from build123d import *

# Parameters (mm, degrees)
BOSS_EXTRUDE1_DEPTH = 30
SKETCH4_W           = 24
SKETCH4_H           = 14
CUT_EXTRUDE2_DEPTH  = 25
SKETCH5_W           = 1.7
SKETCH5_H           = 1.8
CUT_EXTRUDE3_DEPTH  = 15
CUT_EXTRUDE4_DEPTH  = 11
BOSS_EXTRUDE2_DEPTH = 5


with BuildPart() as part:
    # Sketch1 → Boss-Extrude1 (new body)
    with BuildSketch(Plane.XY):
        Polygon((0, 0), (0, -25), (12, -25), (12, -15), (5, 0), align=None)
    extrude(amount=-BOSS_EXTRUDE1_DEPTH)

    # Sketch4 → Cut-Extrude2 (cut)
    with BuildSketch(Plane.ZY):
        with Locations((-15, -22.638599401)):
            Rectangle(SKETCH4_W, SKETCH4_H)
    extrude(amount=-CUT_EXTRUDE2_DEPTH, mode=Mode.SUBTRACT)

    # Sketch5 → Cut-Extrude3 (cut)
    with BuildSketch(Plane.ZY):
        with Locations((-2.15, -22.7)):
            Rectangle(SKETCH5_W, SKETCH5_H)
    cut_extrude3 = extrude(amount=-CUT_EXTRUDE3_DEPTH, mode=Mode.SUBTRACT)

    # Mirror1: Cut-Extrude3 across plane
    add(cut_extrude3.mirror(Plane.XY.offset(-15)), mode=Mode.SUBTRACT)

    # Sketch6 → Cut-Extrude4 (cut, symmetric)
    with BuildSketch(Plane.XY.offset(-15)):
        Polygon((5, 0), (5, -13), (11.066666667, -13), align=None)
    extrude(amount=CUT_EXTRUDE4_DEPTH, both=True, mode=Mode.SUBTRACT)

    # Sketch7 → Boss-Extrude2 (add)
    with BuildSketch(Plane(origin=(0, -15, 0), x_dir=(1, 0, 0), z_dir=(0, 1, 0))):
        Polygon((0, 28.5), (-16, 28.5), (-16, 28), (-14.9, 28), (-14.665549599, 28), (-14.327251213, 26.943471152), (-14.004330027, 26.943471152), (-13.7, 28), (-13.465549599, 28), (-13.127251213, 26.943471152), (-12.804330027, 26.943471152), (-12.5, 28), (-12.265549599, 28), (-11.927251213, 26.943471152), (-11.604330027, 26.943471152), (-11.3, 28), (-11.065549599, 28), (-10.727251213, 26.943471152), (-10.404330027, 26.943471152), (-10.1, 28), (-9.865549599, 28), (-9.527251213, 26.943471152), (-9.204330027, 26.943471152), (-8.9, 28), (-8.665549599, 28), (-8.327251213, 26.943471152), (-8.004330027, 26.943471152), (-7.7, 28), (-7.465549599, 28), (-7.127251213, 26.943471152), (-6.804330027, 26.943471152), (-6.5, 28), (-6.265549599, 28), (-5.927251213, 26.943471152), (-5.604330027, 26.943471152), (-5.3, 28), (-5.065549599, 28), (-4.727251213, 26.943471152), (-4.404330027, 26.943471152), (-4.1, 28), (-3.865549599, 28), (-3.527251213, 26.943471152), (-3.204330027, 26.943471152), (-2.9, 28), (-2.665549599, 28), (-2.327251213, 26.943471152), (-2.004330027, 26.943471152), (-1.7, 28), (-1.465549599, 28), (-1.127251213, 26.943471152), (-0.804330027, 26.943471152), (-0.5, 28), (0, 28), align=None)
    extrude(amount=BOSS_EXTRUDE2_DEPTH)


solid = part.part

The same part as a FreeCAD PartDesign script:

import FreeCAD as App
import Part
import Sketcher

V = App.Vector
Q = App.Units.Quantity

doc = App.newDocument("Part")
params = doc.addObject("Spreadsheet::Sheet", "Params")
for row, (alias, value) in enumerate([
    ("sketch1_width", "12 mm"),
    ("sketch1_width2", "5 mm"),
    ("sketch1_height", "25 mm"),
    ("sketch1_height2", "10 mm"),
    ("pad1_length", "30 mm"),
    ("sketch2_width", "14 mm"),
    ("sketch2_height", "24 mm"),
    ("pocket1_length", "25 mm"),
    ("sketch3_width", "1.8 mm"),
    ("sketch3_height", "1.7 mm"),
    ("pocket2_length", "15 mm"),
    ("sketch4_height", "13 mm"),
    ("pocket3_length", "22 mm"),
    ("sketch5_width", "16 mm"),
    ("sketch5_width2", "0.5 mm"),
    ("pad2_length", "5 mm"),
], start=1):
    params.set(f"A{row}", alias)
    params.set(f"B{row}", "=" + value)
    params.setAlias(f"B{row}", alias)

body = doc.addObject("PartDesign::Body", "Body")

sketch1 = body.newObject("Sketcher::SketchObject", "Sketch")
sketch1.AttachmentSupport = (doc.getObject("XY_Plane"), [""])
sketch1.MapMode = "FlatFace"
sketch1.addGeometry(Part.LineSegment(V(0, 0, 0), V(0, -25, 0)), False)
sketch1.addGeometry(Part.LineSegment(V(0, -25, 0), V(12, -25, 0)), False)
sketch1.addGeometry(Part.LineSegment(V(12, -25, 0), V(12, -15, 0)), False)
sketch1.addGeometry(Part.LineSegment(V(12, -15, 0), V(5, 0, 0)), False)
sketch1.addGeometry(Part.LineSegment(V(5, 0, 0), V(0, 0, 0)), False)
sketch1.addConstraint(Sketcher.Constraint("Coincident", 0, 2, 1, 1))
sketch1.addConstraint(Sketcher.Constraint("Coincident", 1, 2, 2, 1))
sketch1.addConstraint(Sketcher.Constraint("Coincident", 2, 2, 3, 1))
sketch1.addConstraint(Sketcher.Constraint("Coincident", 3, 2, 4, 1))
sketch1.addConstraint(Sketcher.Constraint("Coincident", 4, 2, 0, 1))
sketch1.addConstraint(Sketcher.Constraint("Vertical", 0))
sketch1.addConstraint(Sketcher.Constraint("Horizontal", 1))
sketch1.addConstraint(Sketcher.Constraint("Vertical", 2))
sketch1.addConstraint(Sketcher.Constraint("Horizontal", 4))
sketch1.addConstraint(Sketcher.Constraint("Coincident", 4, 2, -1, 1))
sketch1.addConstraint(Sketcher.Constraint("DistanceX", 1, 1, 1, 2, Q("12 mm")))
sketch1.addConstraint(Sketcher.Constraint("DistanceX", 4, 2, 4, 1, Q("5 mm")))
sketch1.addConstraint(Sketcher.Constraint("DistanceY", 0, 2, 0, 1, Q("25 mm")))
sketch1.addConstraint(Sketcher.Constraint("DistanceY", 2, 1, 2, 2, Q("10 mm")))
sketch1.setExpression("Constraints[10]", "Params.sketch1_width")
sketch1.setExpression("Constraints[11]", "Params.sketch1_width2")
sketch1.setExpression("Constraints[12]", "Params.sketch1_height")
sketch1.setExpression("Constraints[13]", "Params.sketch1_height2")
pad1 = body.newObject("PartDesign::Pad", "Pad")
pad1.Profile = sketch1
pad1.setExpression("Length", "Params.pad1_length")
pad1.Reversed = True

sketch2 = body.newObject("Sketcher::SketchObject", "Sketch001")
sketch2.AttachmentSupport = (doc.getObject("YZ_Plane"), [""])
sketch2.MapMode = "FlatFace"
sketch2.addGeometry(Part.LineSegment(V(-15.638599, -27, 0), V(-29.638599, -27, 0)), False)
sketch2.addGeometry(Part.LineSegment(V(-29.638599, -27, 0), V(-29.638599, -3, 0)), False)
sketch2.addGeometry(Part.LineSegment(V(-29.638599, -3, 0), V(-15.638599, -3, 0)), False)
sketch2.addGeometry(Part.LineSegment(V(-15.638599, -3, 0), V(-15.638599, -27, 0)), False)
sketch2.addConstraint(Sketcher.Constraint("Coincident", 0, 2, 1, 1))
sketch2.addConstraint(Sketcher.Constraint("Coincident", 1, 2, 2, 1))
sketch2.addConstraint(Sketcher.Constraint("Coincident", 2, 2, 3, 1))
sketch2.addConstraint(Sketcher.Constraint("Coincident", 3, 2, 0, 1))
sketch2.addConstraint(Sketcher.Constraint("Horizontal", 0))
sketch2.addConstraint(Sketcher.Constraint("Vertical", 1))
sketch2.addConstraint(Sketcher.Constraint("Horizontal", 2))
sketch2.addConstraint(Sketcher.Constraint("Vertical", 3))
sketch2.addConstraint(Sketcher.Constraint("DistanceX", 0, 2, 0, 1, Q("14 mm")))
sketch2.addConstraint(Sketcher.Constraint("DistanceY", 1, 1, 1, 2, Q("24 mm")))
sketch2.addConstraint(Sketcher.Constraint("DistanceY", 0, 2, -1, 1, Q("27 mm")))
sketch2.addConstraint(Sketcher.Constraint("DistanceX", 0, 2, -1, 1, Q("29.638599 mm")))
sketch2.setExpression("Constraints[8]", "Params.sketch2_width")
sketch2.setExpression("Constraints[9]", "Params.sketch2_height")
pocket1 = body.newObject("PartDesign::Pocket", "Pocket")
pocket1.Profile = sketch2
pocket1.setExpression("Length", "Params.pocket1_length")
pocket1.Reversed = True

sketch3 = body.newObject("Sketcher::SketchObject", "Sketch002")
sketch3.AttachmentSupport = (doc.getObject("YZ_Plane"), [""])
sketch3.MapMode = "FlatFace"
sketch3.addGeometry(Part.LineSegment(V(-21.8, -3, 0), V(-23.6, -3, 0)), False)
sketch3.addGeometry(Part.LineSegment(V(-23.6, -3, 0), V(-23.6, -1.3, 0)), False)
sketch3.addGeometry(Part.LineSegment(V(-23.6, -1.3, 0), V(-21.8, -1.3, 0)), False)
sketch3.addGeometry(Part.LineSegment(V(-21.8, -1.3, 0), V(-21.8, -3, 0)), False)
sketch3.addConstraint(Sketcher.Constraint("Coincident", 0, 2, 1, 1))
sketch3.addConstraint(Sketcher.Constraint("Coincident", 1, 2, 2, 1))
sketch3.addConstraint(Sketcher.Constraint("Coincident", 2, 2, 3, 1))
sketch3.addConstraint(Sketcher.Constraint("Coincident", 3, 2, 0, 1))
sketch3.addConstraint(Sketcher.Constraint("Horizontal", 0))
sketch3.addConstraint(Sketcher.Constraint("Vertical", 1))
sketch3.addConstraint(Sketcher.Constraint("Horizontal", 2))
sketch3.addConstraint(Sketcher.Constraint("Vertical", 3))
sketch3.addConstraint(Sketcher.Constraint("DistanceX", 0, 2, 0, 1, Q("1.8 mm")))
sketch3.addConstraint(Sketcher.Constraint("DistanceY", 1, 1, 1, 2, Q("1.7 mm")))
sketch3.addConstraint(Sketcher.Constraint("DistanceY", 0, 2, -1, 1, Q("3 mm")))
sketch3.addConstraint(Sketcher.Constraint("DistanceX", 0, 2, -1, 1, Q("23.6 mm")))
sketch3.setExpression("Constraints[8]", "Params.sketch3_width")
sketch3.setExpression("Constraints[9]", "Params.sketch3_height")
pocket2 = body.newObject("PartDesign::Pocket", "Pocket001")
pocket2.Profile = sketch3
pocket2.setExpression("Length", "Params.pocket2_length")
pocket2.Reversed = True
doc.recompute()

datumplane = body.newObject("PartDesign::Plane", "DatumPlane")
datumplane.AttachmentSupport = (doc.getObject("XY_Plane"), [""])
datumplane.MapMode = "FlatFace"
datumplane.AttachmentOffset = App.Placement(V(0, 0, -15), App.Rotation())
mirrored = body.newObject("PartDesign::Mirrored", "Mirrored")
mirrored.Originals = [pocket2]
mirrored.MirrorPlane = (datumplane, [""])
body.Tip = mirrored

sketch4 = body.newObject("Sketcher::SketchObject", "Sketch003")
sketch4.AttachmentSupport = (doc.getObject("XY_Plane"), [""])
sketch4.MapMode = "FlatFace"
sketch4.AttachmentOffset = App.Placement(V(0, 0, -15), App.Rotation())
sketch4.addGeometry(Part.LineSegment(V(5, 0, 0), V(5, -13, 0)), False)
sketch4.addGeometry(Part.LineSegment(V(5, -13, 0), V(11.066667, -13, 0)), False)
sketch4.addGeometry(Part.LineSegment(V(11.066667, -13, 0), V(5, 0, 0)), False)
sketch4.addConstraint(Sketcher.Constraint("Coincident", 0, 2, 1, 1))
sketch4.addConstraint(Sketcher.Constraint("Coincident", 1, 2, 2, 1))
sketch4.addConstraint(Sketcher.Constraint("Coincident", 2, 2, 0, 1))
sketch4.addConstraint(Sketcher.Constraint("Vertical", 0))
sketch4.addConstraint(Sketcher.Constraint("Horizontal", 1))
sketch4.addConstraint(Sketcher.Constraint("PointOnObject", 2, 2, -1))
sketch4.addConstraint(Sketcher.Constraint("DistanceY", 0, 2, 0, 1, Q("13 mm")))
sketch4.addConstraint(Sketcher.Constraint("DistanceX", -1, 1, 0, 2, Q("5 mm")))
sketch4.addConstraint(Sketcher.Constraint("DistanceX", 1, 1, 1, 2, Q("6.066667 mm")))
sketch4.setExpression("Constraints[6]", "Params.sketch4_height")
pocket3 = body.newObject("PartDesign::Pocket", "Pocket002")
pocket3.Profile = sketch4
pocket3.setExpression("Length", "Params.pocket3_length")
pocket3.Midplane = True

sketch5 = body.newObject("Sketcher::SketchObject", "Sketch004")
sketch5.AttachmentSupport = (doc.getObject("XZ_Plane"), [""])
sketch5.MapMode = "FlatFace"
sketch5.AttachmentOffset = App.Placement(V(0, 0, 15), App.Rotation())
sketch5.addGeometry(Part.LineSegment(V(0, -28.5, 0), V(-16, -28.5, 0)), False)
sketch5.addGeometry(Part.LineSegment(V(-16, -28.5, 0), V(-16, -28, 0)), False)
sketch5.addGeometry(Part.LineSegment(V(-16, -28, 0), V(-14.66555, -28, 0)), False)
sketch5.addGeometry(Part.LineSegment(V(-14.66555, -28, 0), V(-14.327251, -26.943471, 0)), False)
sketch5.addGeometry(Part.LineSegment(V(-14.327251, -26.943471, 0), V(-14.00433, -26.943471, 0)), False)
sketch5.addGeometry(Part.LineSegment(V(-14.00433, -26.943471, 0), V(-13.7, -28, 0)), False)
sketch5.addGeometry(Part.LineSegment(V(-13.7, -28, 0), V(-13.46555, -28, 0)), False)
sketch5.addGeometry(Part.LineSegment(V(-13.46555, -28, 0), V(-13.127251, -26.943471, 0)), False)
sketch5.addGeometry(Part.LineSegment(V(-13.127251, -26.943471, 0), V(-12.80433, -26.943471, 0)), False)
sketch5.addGeometry(Part.LineSegment(V(-12.80433, -26.943471, 0), V(-12.5, -28, 0)), False)
sketch5.addGeometry(Part.LineSegment(V(-12.5, -28, 0), V(-12.26555, -28, 0)), False)
sketch5.addGeometry(Part.LineSegment(V(-12.26555, -28, 0), V(-11.927251, -26.943471, 0)), False)
sketch5.addGeometry(Part.LineSegment(V(-11.927251, -26.943471, 0), V(-11.60433, -26.943471, 0)), False)
sketch5.addGeometry(Part.LineSegment(V(-11.60433, -26.943471, 0), V(-11.3, -28, 0)), False)
sketch5.addGeometry(Part.LineSegment(V(-11.3, -28, 0), V(-11.06555, -28, 0)), False)
sketch5.addGeometry(Part.LineSegment(V(-11.06555, -28, 0), V(-10.727251, -26.943471, 0)), False)
sketch5.addGeometry(Part.LineSegment(V(-10.727251, -26.943471, 0), V(-10.40433, -26.943471, 0)), False)
sketch5.addGeometry(Part.LineSegment(V(-10.40433, -26.943471, 0), V(-10.1, -28, 0)), False)
sketch5.addGeometry(Part.LineSegment(V(-10.1, -28, 0), V(-9.86555, -28, 0)), False)
sketch5.addGeometry(Part.LineSegment(V(-9.86555, -28, 0), V(-9.527251, -26.943471, 0)), False)
sketch5.addGeometry(Part.LineSegment(V(-9.527251, -26.943471, 0), V(-9.20433, -26.943471, 0)), False)
sketch5.addGeometry(Part.LineSegment(V(-9.20433, -26.943471, 0), V(-8.9, -28, 0)), False)
sketch5.addGeometry(Part.LineSegment(V(-8.9, -28, 0), V(-8.66555, -28, 0)), False)
sketch5.addGeometry(Part.LineSegment(V(-8.66555, -28, 0), V(-8.327251, -26.943471, 0)), False)
sketch5.addGeometry(Part.LineSegment(V(-8.327251, -26.943471, 0), V(-8.00433, -26.943471, 0)), False)
sketch5.addGeometry(Part.LineSegment(V(-8.00433, -26.943471, 0), V(-7.7, -28, 0)), False)
sketch5.addGeometry(Part.LineSegment(V(-7.7, -28, 0), V(-7.46555, -28, 0)), False)
sketch5.addGeometry(Part.LineSegment(V(-7.46555, -28, 0), V(-7.127251, -26.943471, 0)), False)
sketch5.addGeometry(Part.LineSegment(V(-7.127251, -26.943471, 0), V(-6.80433, -26.943471, 0)), False)
sketch5.addGeometry(Part.LineSegment(V(-6.80433, -26.943471, 0), V(-6.5, -28, 0)), False)
sketch5.addGeometry(Part.LineSegment(V(-6.5, -28, 0), V(-6.26555, -28, 0)), False)
sketch5.addGeometry(Part.LineSegment(V(-6.26555, -28, 0), V(-5.927251, -26.943471, 0)), False)
sketch5.addGeometry(Part.LineSegment(V(-5.927251, -26.943471, 0), V(-5.60433, -26.943471, 0)), False)
sketch5.addGeometry(Part.LineSegment(V(-5.60433, -26.943471, 0), V(-5.3, -28, 0)), False)
sketch5.addGeometry(Part.LineSegment(V(-5.3, -28, 0), V(-5.06555, -28, 0)), False)
sketch5.addGeometry(Part.LineSegment(V(-5.06555, -28, 0), V(-4.727251, -26.943471, 0)), False)
sketch5.addGeometry(Part.LineSegment(V(-4.727251, -26.943471, 0), V(-4.40433, -26.943471, 0)), False)
sketch5.addGeometry(Part.LineSegment(V(-4.40433, -26.943471, 0), V(-4.1, -28, 0)), False)
sketch5.addGeometry(Part.LineSegment(V(-4.1, -28, 0), V(-3.86555, -28, 0)), False)
sketch5.addGeometry(Part.LineSegment(V(-3.86555, -28, 0), V(-3.527251, -26.943471, 0)), False)
sketch5.addGeometry(Part.LineSegment(V(-3.527251, -26.943471, 0), V(-3.20433, -26.943471, 0)), False)
sketch5.addGeometry(Part.LineSegment(V(-3.20433, -26.943471, 0), V(-2.9, -28, 0)), False)
sketch5.addGeometry(Part.LineSegment(V(-2.9, -28, 0), V(-2.66555, -28, 0)), False)
sketch5.addGeometry(Part.LineSegment(V(-2.66555, -28, 0), V(-2.327251, -26.943471, 0)), False)
sketch5.addGeometry(Part.LineSegment(V(-2.327251, -26.943471, 0), V(-2.00433, -26.943471, 0)), False)
sketch5.addGeometry(Part.LineSegment(V(-2.00433, -26.943471, 0), V(-1.7, -28, 0)), False)
sketch5.addGeometry(Part.LineSegment(V(-1.7, -28, 0), V(-1.46555, -28, 0)), False)
sketch5.addGeometry(Part.LineSegment(V(-1.46555, -28, 0), V(-1.127251, -26.943471, 0)), False)
sketch5.addGeometry(Part.LineSegment(V(-1.127251, -26.943471, 0), V(-0.80433, -26.943471, 0)), False)
sketch5.addGeometry(Part.LineSegment(V(-0.80433, -26.943471, 0), V(-0.5, -28, 0)), False)
sketch5.addGeometry(Part.LineSegment(V(-0.5, -28, 0), V(0, -28, 0)), False)
sketch5.addGeometry(Part.LineSegment(V(0, -28, 0), V(0, -28.5, 0)), False)
sketch5.addConstraint(Sketcher.Constraint("Coincident", 0, 2, 1, 1))
sketch5.addConstraint(Sketcher.Constraint("Coincident", 1, 2, 2, 1))
sketch5.addConstraint(Sketcher.Constraint("Coincident", 2, 2, 3, 1))
sketch5.addConstraint(Sketcher.Constraint("Coincident", 3, 2, 4, 1))
sketch5.addConstraint(Sketcher.Constraint("Coincident", 4, 2, 5, 1))
sketch5.addConstraint(Sketcher.Constraint("Coincident", 5, 2, 6, 1))
sketch5.addConstraint(Sketcher.Constraint("Coincident", 6, 2, 7, 1))
sketch5.addConstraint(Sketcher.Constraint("Coincident", 7, 2, 8, 1))
sketch5.addConstraint(Sketcher.Constraint("Coincident", 8, 2, 9, 1))
sketch5.addConstraint(Sketcher.Constraint("Coincident", 9, 2, 10, 1))
sketch5.addConstraint(Sketcher.Constraint("Coincident", 10, 2, 11, 1))
sketch5.addConstraint(Sketcher.Constraint("Coincident", 11, 2, 12, 1))
sketch5.addConstraint(Sketcher.Constraint("Coincident", 12, 2, 13, 1))
sketch5.addConstraint(Sketcher.Constraint("Coincident", 13, 2, 14, 1))
sketch5.addConstraint(Sketcher.Constraint("Coincident", 14, 2, 15, 1))
sketch5.addConstraint(Sketcher.Constraint("Coincident", 15, 2, 16, 1))
sketch5.addConstraint(Sketcher.Constraint("Coincident", 16, 2, 17, 1))
sketch5.addConstraint(Sketcher.Constraint("Coincident", 17, 2, 18, 1))
sketch5.addConstraint(Sketcher.Constraint("Coincident", 18, 2, 19, 1))
sketch5.addConstraint(Sketcher.Constraint("Coincident", 19, 2, 20, 1))
sketch5.addConstraint(Sketcher.Constraint("Coincident", 20, 2, 21, 1))
sketch5.addConstraint(Sketcher.Constraint("Coincident", 21, 2, 22, 1))
sketch5.addConstraint(Sketcher.Constraint("Coincident", 22, 2, 23, 1))
sketch5.addConstraint(Sketcher.Constraint("Coincident", 23, 2, 24, 1))
sketch5.addConstraint(Sketcher.Constraint("Coincident", 24, 2, 25, 1))
sketch5.addConstraint(Sketcher.Constraint("Coincident", 25, 2, 26, 1))
sketch5.addConstraint(Sketcher.Constraint("Coincident", 26, 2, 27, 1))
sketch5.addConstraint(Sketcher.Constraint("Coincident", 27, 2, 28, 1))
sketch5.addConstraint(Sketcher.Constraint("Coincident", 28, 2, 29, 1))
sketch5.addConstraint(Sketcher.Constraint("Coincident", 29, 2, 30, 1))
sketch5.addConstraint(Sketcher.Constraint("Coincident", 30, 2, 31, 1))
sketch5.addConstraint(Sketcher.Constraint("Coincident", 31, 2, 32, 1))
sketch5.addConstraint(Sketcher.Constraint("Coincident", 32, 2, 33, 1))
sketch5.addConstraint(Sketcher.Constraint("Coincident", 33, 2, 34, 1))
sketch5.addConstraint(Sketcher.Constraint("Coincident", 34, 2, 35, 1))
sketch5.addConstraint(Sketcher.Constraint("Coincident", 35, 2, 36, 1))
sketch5.addConstraint(Sketcher.Constraint("Coincident", 36, 2, 37, 1))
sketch5.addConstraint(Sketcher.Constraint("Coincident", 37, 2, 38, 1))
sketch5.addConstraint(Sketcher.Constraint("Coincident", 38, 2, 39, 1))
sketch5.addConstraint(Sketcher.Constraint("Coincident", 39, 2, 40, 1))
sketch5.addConstraint(Sketcher.Constraint("Coincident", 40, 2, 41, 1))
sketch5.addConstraint(Sketcher.Constraint("Coincident", 41, 2, 42, 1))
sketch5.addConstraint(Sketcher.Constraint("Coincident", 42, 2, 43, 1))
sketch5.addConstraint(Sketcher.Constraint("Coincident", 43, 2, 44, 1))
sketch5.addConstraint(Sketcher.Constraint("Coincident", 44, 2, 45, 1))
sketch5.addConstraint(Sketcher.Constraint("Coincident", 45, 2, 46, 1))
sketch5.addConstraint(Sketcher.Constraint("Coincident", 46, 2, 47, 1))
sketch5.addConstraint(Sketcher.Constraint("Coincident", 47, 2, 48, 1))
sketch5.addConstraint(Sketcher.Constraint("Coincident", 48, 2, 49, 1))
sketch5.addConstraint(Sketcher.Constraint("Coincident", 49, 2, 50, 1))
sketch5.addConstraint(Sketcher.Constraint("Coincident", 50, 2, 51, 1))
sketch5.addConstraint(Sketcher.Constraint("Coincident", 51, 2, 0, 1))
sketch5.addConstraint(Sketcher.Constraint("Horizontal", 0))
sketch5.addConstraint(Sketcher.Constraint("Vertical", 1))
sketch5.addConstraint(Sketcher.Constraint("Horizontal", 2))
sketch5.addConstraint(Sketcher.Constraint("Horizontal", 4))
sketch5.addConstraint(Sketcher.Constraint("Horizontal", 6))
sketch5.addConstraint(Sketcher.Constraint("Horizontal", 8))
sketch5.addConstraint(Sketcher.Constraint("Horizontal", 10))
sketch5.addConstraint(Sketcher.Constraint("Horizontal", 12))
sketch5.addConstraint(Sketcher.Constraint("Horizontal", 14))
sketch5.addConstraint(Sketcher.Constraint("Horizontal", 16))
sketch5.addConstraint(Sketcher.Constraint("Horizontal", 18))
sketch5.addConstraint(Sketcher.Constraint("Horizontal", 20))
sketch5.addConstraint(Sketcher.Constraint("Horizontal", 22))
sketch5.addConstraint(Sketcher.Constraint("Horizontal", 24))
sketch5.addConstraint(Sketcher.Constraint("Horizontal", 26))
sketch5.addConstraint(Sketcher.Constraint("Horizontal", 28))
sketch5.addConstraint(Sketcher.Constraint("Horizontal", 30))
sketch5.addConstraint(Sketcher.Constraint("Horizontal", 32))
sketch5.addConstraint(Sketcher.Constraint("Horizontal", 34))
sketch5.addConstraint(Sketcher.Constraint("Horizontal", 36))
sketch5.addConstraint(Sketcher.Constraint("Horizontal", 38))
sketch5.addConstraint(Sketcher.Constraint("Horizontal", 40))
sketch5.addConstraint(Sketcher.Constraint("Horizontal", 42))
sketch5.addConstraint(Sketcher.Constraint("Horizontal", 44))
sketch5.addConstraint(Sketcher.Constraint("Horizontal", 46))
sketch5.addConstraint(Sketcher.Constraint("Horizontal", 48))
sketch5.addConstraint(Sketcher.Constraint("Horizontal", 50))
sketch5.addConstraint(Sketcher.Constraint("Vertical", 51))
sketch5.addConstraint(Sketcher.Constraint("PointOnObject", 50, 2, -2))
sketch5.addConstraint(Sketcher.Constraint("Parallel", 3, 7))
sketch5.addConstraint(Sketcher.Constraint("Parallel", 5, 9))
sketch5.addConstraint(Sketcher.Constraint("Parallel", 7, 11))
sketch5.addConstraint(Sketcher.Constraint("Parallel", 9, 13))
sketch5.addConstraint(Sketcher.Constraint("Parallel", 11, 15))
sketch5.addConstraint(Sketcher.Constraint("Parallel", 13, 17))
sketch5.addConstraint(Sketcher.Constraint("Parallel", 15, 19))
sketch5.addConstraint(Sketcher.Constraint("Parallel", 17, 21))
sketch5.addConstraint(Sketcher.Constraint("Parallel", 19, 23))
sketch5.addConstraint(Sketcher.Constraint("Parallel", 21, 25))
sketch5.addConstraint(Sketcher.Constraint("Parallel", 23, 27))
sketch5.addConstraint(Sketcher.Constraint("Parallel", 25, 29))
sketch5.addConstraint(Sketcher.Constraint("Parallel", 27, 31))
sketch5.addConstraint(Sketcher.Constraint("Parallel", 29, 33))
sketch5.addConstraint(Sketcher.Constraint("Parallel", 31, 35))
sketch5.addConstraint(Sketcher.Constraint("Parallel", 33, 37))
sketch5.addConstraint(Sketcher.Constraint("Parallel", 35, 39))
sketch5.addConstraint(Sketcher.Constraint("Parallel", 37, 41))
sketch5.addConstraint(Sketcher.Constraint("Parallel", 39, 43))
sketch5.addConstraint(Sketcher.Constraint("Parallel", 41, 45))
sketch5.addConstraint(Sketcher.Constraint("Parallel", 43, 47))
sketch5.addConstraint(Sketcher.Constraint("Parallel", 45, 49))
sketch5.addConstraint(Sketcher.Constraint("Horizontal", 2, 2, 5, 2))
sketch5.addConstraint(Sketcher.Constraint("Horizontal", 4, 2, 7, 2))
sketch5.addConstraint(Sketcher.Constraint("Horizontal", 6, 2, 9, 2))
sketch5.addConstraint(Sketcher.Constraint("Horizontal", 8, 2, 11, 2))
sketch5.addConstraint(Sketcher.Constraint("Horizontal", 10, 2, 13, 2))
sketch5.addConstraint(Sketcher.Constraint("Horizontal", 12, 2, 15, 2))
sketch5.addConstraint(Sketcher.Constraint("Horizontal", 14, 2, 17, 2))
sketch5.addConstraint(Sketcher.Constraint("Horizontal", 16, 2, 19, 2))
sketch5.addConstraint(Sketcher.Constraint("Horizontal", 18, 2, 21, 2))
sketch5.addConstraint(Sketcher.Constraint("Horizontal", 20, 2, 23, 2))
sketch5.addConstraint(Sketcher.Constraint("Horizontal", 22, 2, 25, 2))
sketch5.addConstraint(Sketcher.Constraint("Horizontal", 24, 2, 27, 2))
sketch5.addConstraint(Sketcher.Constraint("Horizontal", 26, 2, 29, 2))
sketch5.addConstraint(Sketcher.Constraint("Horizontal", 28, 2, 31, 2))
sketch5.addConstraint(Sketcher.Constraint("Horizontal", 30, 2, 33, 2))
sketch5.addConstraint(Sketcher.Constraint("Horizontal", 32, 2, 35, 2))
sketch5.addConstraint(Sketcher.Constraint("Horizontal", 34, 2, 37, 2))
sketch5.addConstraint(Sketcher.Constraint("Horizontal", 36, 2, 39, 2))
sketch5.addConstraint(Sketcher.Constraint("Horizontal", 38, 2, 41, 2))
sketch5.addConstraint(Sketcher.Constraint("Horizontal", 40, 2, 43, 2))
sketch5.addConstraint(Sketcher.Constraint("Horizontal", 42, 2, 45, 2))
sketch5.addConstraint(Sketcher.Constraint("Horizontal", 44, 2, 47, 2))
sketch5.addConstraint(Sketcher.Constraint("Horizontal", 46, 2, 49, 2))
sketch5.addConstraint(Sketcher.Constraint("Equal", 4, 8))
sketch5.addConstraint(Sketcher.Constraint("Equal", 6, 10))
sketch5.addConstraint(Sketcher.Constraint("Equal", 8, 12))
sketch5.addConstraint(Sketcher.Constraint("Equal", 10, 14))
sketch5.addConstraint(Sketcher.Constraint("Equal", 12, 16))
sketch5.addConstraint(Sketcher.Constraint("Equal", 14, 18))
sketch5.addConstraint(Sketcher.Constraint("Equal", 16, 20))
sketch5.addConstraint(Sketcher.Constraint("Equal", 18, 22))
sketch5.addConstraint(Sketcher.Constraint("Equal", 20, 24))
sketch5.addConstraint(Sketcher.Constraint("Equal", 22, 26))
sketch5.addConstraint(Sketcher.Constraint("Equal", 24, 28))
sketch5.addConstraint(Sketcher.Constraint("Equal", 26, 30))
sketch5.addConstraint(Sketcher.Constraint("Equal", 28, 32))
sketch5.addConstraint(Sketcher.Constraint("Equal", 30, 34))
sketch5.addConstraint(Sketcher.Constraint("Equal", 32, 36))
sketch5.addConstraint(Sketcher.Constraint("Equal", 34, 38))
sketch5.addConstraint(Sketcher.Constraint("Equal", 36, 40))
sketch5.addConstraint(Sketcher.Constraint("Equal", 38, 42))
sketch5.addConstraint(Sketcher.Constraint("Equal", 40, 44))
sketch5.addConstraint(Sketcher.Constraint("Equal", 42, 46))
sketch5.addConstraint(Sketcher.Constraint("Equal", 44, 48))
sketch5.addConstraint(Sketcher.Constraint("Equal", 50, 1))
sketch5.addConstraint(Sketcher.Constraint("DistanceX", 0, 2, 0, 1, Q("16 mm")))
sketch5.addConstraint(Sketcher.Constraint("DistanceX", 50, 1, 50, 2, Q("0.5 mm")))
sketch5.addConstraint(Sketcher.Constraint("DistanceY", 1, 2, -1, 1, Q("28 mm")))
sketch5.addConstraint(Sketcher.Constraint("DistanceX", 5, 2, -1, 1, Q("13.7 mm")))
sketch5.addConstraint(Sketcher.Constraint("DistanceX", 2, 1, 2, 2, Q("1.33445 mm")))
sketch5.addConstraint(Sketcher.Constraint("DistanceX", 4, 1, 4, 2, Q("0.322921 mm")))
sketch5.addConstraint(Sketcher.Constraint("DistanceX", 2, 2, 3, 2, Q("0.338298 mm")))
sketch5.addConstraint(Sketcher.Constraint("Distance", 3, Q("1.109369 mm")))
sketch5.setExpression("Constraints[148]", "Params.sketch5_width")
sketch5.setExpression("Constraints[149]", "Params.sketch5_width2")
pad2 = body.newObject("PartDesign::Pad", "Pad001")
pad2.Profile = sketch5
pad2.setExpression("Length", "Params.pad2_length")
pad2.Reversed = True

doc.recompute()
